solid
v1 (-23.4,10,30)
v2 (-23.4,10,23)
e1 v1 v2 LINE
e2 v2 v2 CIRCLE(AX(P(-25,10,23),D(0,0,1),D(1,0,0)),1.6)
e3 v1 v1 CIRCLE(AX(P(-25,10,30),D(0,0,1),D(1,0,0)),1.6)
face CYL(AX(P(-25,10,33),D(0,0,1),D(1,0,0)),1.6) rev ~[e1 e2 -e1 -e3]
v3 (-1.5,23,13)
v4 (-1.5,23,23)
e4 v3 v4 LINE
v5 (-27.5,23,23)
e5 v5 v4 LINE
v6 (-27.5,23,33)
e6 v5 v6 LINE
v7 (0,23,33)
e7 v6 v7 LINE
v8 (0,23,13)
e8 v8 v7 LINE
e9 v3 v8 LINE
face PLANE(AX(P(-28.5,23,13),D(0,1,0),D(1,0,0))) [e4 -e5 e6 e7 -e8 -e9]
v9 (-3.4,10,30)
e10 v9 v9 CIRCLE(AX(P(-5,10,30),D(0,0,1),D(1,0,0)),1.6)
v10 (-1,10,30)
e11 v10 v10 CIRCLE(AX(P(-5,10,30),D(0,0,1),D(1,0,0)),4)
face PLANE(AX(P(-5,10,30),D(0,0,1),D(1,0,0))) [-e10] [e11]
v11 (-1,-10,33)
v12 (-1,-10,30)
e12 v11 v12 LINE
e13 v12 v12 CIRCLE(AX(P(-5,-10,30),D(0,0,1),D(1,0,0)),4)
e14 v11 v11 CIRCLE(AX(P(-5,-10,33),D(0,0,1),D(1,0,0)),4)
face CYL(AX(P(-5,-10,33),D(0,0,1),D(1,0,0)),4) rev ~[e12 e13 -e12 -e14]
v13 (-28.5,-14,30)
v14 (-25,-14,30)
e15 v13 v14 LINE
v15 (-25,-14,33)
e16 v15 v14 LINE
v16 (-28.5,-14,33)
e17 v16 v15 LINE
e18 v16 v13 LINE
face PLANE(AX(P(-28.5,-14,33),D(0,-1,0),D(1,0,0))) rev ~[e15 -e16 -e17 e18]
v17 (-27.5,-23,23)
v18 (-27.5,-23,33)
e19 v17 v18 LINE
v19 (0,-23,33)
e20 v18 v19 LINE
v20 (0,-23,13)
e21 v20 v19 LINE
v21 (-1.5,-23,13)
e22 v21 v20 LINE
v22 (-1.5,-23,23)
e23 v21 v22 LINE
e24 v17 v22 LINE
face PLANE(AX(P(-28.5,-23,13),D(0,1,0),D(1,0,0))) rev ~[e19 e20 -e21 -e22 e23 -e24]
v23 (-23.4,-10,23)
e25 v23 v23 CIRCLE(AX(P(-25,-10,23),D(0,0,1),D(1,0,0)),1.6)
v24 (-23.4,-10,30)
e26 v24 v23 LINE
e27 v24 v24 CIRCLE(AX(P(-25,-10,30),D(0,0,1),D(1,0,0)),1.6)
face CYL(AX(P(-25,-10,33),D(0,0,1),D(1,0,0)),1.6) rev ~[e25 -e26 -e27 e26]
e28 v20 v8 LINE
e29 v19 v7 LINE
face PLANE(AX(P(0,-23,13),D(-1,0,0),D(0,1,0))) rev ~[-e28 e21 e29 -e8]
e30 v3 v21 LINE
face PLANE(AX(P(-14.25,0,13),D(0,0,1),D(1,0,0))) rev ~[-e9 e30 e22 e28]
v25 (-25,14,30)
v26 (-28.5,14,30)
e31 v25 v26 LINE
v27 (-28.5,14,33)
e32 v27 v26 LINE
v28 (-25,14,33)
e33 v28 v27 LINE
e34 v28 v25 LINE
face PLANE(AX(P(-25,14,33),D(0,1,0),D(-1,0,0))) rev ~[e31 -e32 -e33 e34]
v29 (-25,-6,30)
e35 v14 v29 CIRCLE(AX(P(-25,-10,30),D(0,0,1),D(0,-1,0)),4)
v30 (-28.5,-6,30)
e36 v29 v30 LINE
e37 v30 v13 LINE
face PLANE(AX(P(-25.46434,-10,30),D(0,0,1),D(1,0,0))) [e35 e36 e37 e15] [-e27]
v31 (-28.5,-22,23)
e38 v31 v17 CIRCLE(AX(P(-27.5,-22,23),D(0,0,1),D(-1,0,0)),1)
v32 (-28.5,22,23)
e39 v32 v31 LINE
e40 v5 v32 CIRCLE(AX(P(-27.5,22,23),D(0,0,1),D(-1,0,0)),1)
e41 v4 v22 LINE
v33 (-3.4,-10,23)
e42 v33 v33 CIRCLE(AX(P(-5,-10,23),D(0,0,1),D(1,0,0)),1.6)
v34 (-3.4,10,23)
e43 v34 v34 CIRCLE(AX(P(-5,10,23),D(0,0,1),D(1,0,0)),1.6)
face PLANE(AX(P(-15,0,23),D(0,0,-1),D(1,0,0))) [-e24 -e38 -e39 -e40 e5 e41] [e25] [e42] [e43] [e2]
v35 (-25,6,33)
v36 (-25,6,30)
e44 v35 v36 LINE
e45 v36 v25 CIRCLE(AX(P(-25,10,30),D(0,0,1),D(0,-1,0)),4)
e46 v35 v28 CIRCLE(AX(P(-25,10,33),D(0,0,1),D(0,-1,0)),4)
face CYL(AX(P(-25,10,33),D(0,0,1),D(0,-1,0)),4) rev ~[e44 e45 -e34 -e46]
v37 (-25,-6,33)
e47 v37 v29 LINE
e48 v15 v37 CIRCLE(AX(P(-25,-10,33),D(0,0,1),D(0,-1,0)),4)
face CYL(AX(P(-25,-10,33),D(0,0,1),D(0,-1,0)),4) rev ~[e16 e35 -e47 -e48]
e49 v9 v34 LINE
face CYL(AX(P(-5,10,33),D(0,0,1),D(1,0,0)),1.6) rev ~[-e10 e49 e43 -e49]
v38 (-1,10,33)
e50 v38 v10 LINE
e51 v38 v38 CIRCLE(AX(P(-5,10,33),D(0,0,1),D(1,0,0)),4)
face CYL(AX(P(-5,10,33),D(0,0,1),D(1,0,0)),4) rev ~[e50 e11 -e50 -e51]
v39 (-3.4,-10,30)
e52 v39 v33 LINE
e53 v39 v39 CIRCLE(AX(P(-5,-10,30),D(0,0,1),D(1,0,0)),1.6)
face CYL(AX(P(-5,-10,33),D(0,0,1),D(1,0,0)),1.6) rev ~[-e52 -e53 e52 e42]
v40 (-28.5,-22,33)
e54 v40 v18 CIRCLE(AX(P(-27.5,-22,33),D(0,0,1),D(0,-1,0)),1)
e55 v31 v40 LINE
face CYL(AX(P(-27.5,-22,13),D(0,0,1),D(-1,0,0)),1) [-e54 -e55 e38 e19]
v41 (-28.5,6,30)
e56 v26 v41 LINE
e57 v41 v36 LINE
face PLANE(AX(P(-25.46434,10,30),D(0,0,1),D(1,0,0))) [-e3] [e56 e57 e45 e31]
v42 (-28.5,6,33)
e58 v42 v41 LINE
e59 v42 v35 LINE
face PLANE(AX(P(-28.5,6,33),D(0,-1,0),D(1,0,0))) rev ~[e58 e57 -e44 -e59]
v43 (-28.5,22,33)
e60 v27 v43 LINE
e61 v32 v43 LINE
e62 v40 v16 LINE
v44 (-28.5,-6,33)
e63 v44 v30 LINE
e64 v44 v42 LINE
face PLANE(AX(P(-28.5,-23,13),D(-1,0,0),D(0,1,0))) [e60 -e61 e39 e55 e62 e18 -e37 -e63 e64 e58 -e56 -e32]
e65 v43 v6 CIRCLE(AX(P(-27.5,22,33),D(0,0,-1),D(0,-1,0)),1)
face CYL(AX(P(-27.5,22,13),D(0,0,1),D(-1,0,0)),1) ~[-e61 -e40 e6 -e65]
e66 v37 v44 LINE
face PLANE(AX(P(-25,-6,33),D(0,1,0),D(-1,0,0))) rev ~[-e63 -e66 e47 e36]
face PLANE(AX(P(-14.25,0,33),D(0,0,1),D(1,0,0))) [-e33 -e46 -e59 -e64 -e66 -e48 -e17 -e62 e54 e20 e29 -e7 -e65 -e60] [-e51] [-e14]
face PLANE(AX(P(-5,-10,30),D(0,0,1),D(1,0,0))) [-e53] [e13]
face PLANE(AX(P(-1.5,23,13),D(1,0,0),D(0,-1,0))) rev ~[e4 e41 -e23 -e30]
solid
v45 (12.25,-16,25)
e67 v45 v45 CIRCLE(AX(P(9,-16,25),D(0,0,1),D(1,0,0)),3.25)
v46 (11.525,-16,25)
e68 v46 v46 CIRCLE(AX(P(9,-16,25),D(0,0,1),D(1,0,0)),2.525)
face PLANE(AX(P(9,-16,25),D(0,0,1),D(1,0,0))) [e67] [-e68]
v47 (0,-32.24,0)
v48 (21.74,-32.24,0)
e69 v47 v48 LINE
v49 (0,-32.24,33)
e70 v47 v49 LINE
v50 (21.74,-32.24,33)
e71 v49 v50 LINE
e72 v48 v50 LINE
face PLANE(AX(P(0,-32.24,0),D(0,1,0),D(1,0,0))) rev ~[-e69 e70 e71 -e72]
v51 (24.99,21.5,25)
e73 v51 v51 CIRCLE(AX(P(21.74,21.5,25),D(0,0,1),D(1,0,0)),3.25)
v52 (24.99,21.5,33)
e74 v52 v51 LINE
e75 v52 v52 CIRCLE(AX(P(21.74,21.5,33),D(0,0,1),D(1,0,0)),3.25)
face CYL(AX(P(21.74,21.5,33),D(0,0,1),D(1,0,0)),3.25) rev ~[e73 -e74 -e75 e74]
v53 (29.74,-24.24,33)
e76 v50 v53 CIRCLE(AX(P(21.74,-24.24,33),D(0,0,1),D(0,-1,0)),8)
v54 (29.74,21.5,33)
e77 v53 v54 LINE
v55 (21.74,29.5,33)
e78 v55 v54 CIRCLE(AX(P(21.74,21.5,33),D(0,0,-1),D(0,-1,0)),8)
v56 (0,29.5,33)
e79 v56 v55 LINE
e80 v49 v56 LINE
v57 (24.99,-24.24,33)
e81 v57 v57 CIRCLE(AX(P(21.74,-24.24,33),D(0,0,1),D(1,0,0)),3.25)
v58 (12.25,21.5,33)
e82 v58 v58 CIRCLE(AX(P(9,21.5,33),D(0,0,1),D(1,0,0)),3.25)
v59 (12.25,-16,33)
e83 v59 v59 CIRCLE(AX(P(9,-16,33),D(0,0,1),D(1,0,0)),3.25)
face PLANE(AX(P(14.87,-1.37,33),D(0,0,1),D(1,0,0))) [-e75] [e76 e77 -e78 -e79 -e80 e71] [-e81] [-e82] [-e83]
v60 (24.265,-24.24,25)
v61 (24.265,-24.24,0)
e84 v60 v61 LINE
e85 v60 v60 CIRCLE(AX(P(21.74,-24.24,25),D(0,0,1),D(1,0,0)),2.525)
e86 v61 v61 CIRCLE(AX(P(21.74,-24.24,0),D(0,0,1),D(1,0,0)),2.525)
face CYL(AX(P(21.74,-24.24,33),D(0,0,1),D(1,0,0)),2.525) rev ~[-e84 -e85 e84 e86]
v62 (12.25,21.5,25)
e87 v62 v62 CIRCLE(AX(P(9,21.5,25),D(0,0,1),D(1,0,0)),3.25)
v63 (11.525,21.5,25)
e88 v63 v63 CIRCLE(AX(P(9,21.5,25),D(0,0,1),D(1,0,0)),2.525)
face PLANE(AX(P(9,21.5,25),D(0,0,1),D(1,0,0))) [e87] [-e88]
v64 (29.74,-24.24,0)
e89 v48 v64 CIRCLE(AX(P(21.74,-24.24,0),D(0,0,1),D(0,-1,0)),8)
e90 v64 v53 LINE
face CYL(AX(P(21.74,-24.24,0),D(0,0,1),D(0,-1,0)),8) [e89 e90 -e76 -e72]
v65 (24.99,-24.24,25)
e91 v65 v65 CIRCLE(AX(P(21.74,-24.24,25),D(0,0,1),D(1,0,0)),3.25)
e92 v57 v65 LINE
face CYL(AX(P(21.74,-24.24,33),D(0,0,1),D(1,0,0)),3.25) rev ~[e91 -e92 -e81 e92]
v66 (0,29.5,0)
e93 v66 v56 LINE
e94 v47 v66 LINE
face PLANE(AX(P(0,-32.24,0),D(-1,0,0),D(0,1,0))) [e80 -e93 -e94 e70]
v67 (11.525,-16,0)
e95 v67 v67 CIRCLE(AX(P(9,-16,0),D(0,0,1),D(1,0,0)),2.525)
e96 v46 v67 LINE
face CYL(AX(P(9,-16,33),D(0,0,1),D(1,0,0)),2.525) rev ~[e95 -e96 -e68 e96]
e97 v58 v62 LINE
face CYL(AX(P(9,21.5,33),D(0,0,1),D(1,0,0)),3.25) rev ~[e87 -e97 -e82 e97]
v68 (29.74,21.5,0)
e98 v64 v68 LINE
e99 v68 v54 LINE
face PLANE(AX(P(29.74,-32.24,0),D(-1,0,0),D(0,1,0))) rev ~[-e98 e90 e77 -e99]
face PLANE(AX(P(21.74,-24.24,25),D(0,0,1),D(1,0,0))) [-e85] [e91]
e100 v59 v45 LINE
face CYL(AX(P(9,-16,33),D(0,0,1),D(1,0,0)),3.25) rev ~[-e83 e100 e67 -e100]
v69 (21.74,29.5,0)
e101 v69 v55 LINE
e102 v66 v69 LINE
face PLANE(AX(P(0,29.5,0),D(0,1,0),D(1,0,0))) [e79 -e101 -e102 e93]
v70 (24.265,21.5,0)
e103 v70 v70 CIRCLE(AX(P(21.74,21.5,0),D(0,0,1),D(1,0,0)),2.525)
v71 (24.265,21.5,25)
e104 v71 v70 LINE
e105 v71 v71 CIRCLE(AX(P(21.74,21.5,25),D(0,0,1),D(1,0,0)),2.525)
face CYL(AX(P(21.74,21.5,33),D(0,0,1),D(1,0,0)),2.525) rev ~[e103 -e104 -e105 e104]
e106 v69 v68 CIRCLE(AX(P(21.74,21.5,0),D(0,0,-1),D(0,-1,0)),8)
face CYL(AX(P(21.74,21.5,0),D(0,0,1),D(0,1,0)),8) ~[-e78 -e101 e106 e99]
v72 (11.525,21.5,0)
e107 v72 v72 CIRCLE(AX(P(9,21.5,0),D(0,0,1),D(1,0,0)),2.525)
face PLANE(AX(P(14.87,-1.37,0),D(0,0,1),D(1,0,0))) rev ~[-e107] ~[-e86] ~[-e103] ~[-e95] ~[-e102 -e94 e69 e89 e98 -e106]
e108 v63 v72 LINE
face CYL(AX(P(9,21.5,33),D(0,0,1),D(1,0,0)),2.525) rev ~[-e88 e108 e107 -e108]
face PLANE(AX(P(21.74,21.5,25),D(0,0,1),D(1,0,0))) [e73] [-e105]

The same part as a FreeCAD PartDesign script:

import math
import FreeCAD as App
import Part
import Sketcher


def edges_at(feature, points):
    """Names of the edges that pass closest to the given points."""
    edges = feature.Shape.Edges
    near = lambda p: min(range(len(edges)), key=lambda i: edges[i].distToShape(Part.Vertex(*p))[0])
    return sorted({f"Edge{near(p) + 1}" for p in points})

doc = App.newDocument("Part")
body = doc.addObject("PartDesign::Body", "Body")

sketch1 = doc.addObject("Sketcher::SketchObject", "Sketch")
body.addObject(sketch1)
sketch1.AttachmentSupport = (doc.XY_Plane, [""])
sketch1.MapMode = "FlatFace"
sketch1.addGeometry([
    Part.LineSegment(App.Vector(-28, 23, 0), App.Vector(-28, -23, 0)),
    Part.LineSegment(App.Vector(-28, -23, 0), App.Vector(0, -23, 0)),
    Part.LineSegment(App.Vector(0, -23, 0), App.Vector(0, 23, 0)),
    Part.LineSegment(App.Vector(0, 23, 0), App.Vector(-28, 23, 0)),
], False)
sketch1.addConstraint([
    Sketcher.Constraint("Coincident", 0, 2, 1, 1),
    Sketcher.Constraint("Coincident", 1, 2, 2, 1),
    Sketcher.Constraint("Coincident", 2, 2, 3, 1),
    Sketcher.Constraint("Coincident", 3, 2, 0, 1),
    Sketcher.Constraint("Vertical", 0),
    Sketcher.Constraint("Horizontal", 1),
    Sketcher.Constraint("Vertical", 2),
    Sketcher.Constraint("Horizontal", 3),
    Sketcher.Constraint("Symmetric", 1, 2, 2, 2, -1, 1),
    Sketcher.Constraint("DistanceY", 0, 2, 0, 1, 46.0),
    Sketcher.Constraint("DistanceX", 1, 1, 1, 2, 28.5),
])
pad1 = doc.addObject("PartDesign::Pad", "Pad")
body.addObject(pad1)
pad1.Profile = sketch1
pad1.Length = 20
doc.recompute()

fillet = doc.addObject("PartDesign::Fillet", "Fillet")
body.addObject(fillet)
fillet.Base = (pad1, edges_at(pad1, [(-28.5, 23, 10), (-28.5, -23, 10)]))
fillet.Radius = 1

sketch2 = doc.addObject("Sketcher::SketchObject", "Sketch001")
body.addObject(sketch2)
sketch2.AttachmentSupport = (doc.XY_Plane, [""])
sketch2.MapMode = "FlatFace"
sketch2.AttachmentOffset = App.Placement(App.Vector(0, 0, 20), App.Rotation())
sketch2.addGeometry([
    Part.Circle(App.Vector(-25, 10, 0), App.Vector(0, 0, 1), 1.6),
    Part.Circle(App.Vector(-5, 10, 0), App.Vector(0, 0, 1), 1.6),
    Part.Circle(App.Vector(-25, -10, 0), App.Vector(0, 0, 1), 1.6),
    Part.Circle(App.Vector(-5, -10, 0), App.Vector(0, 0, 1), 1.6),
], False)
sketch2.addConstraint([
    Sketcher.Constraint("Equal", 0, 1),
    Sketcher.Constraint("Equal", 1, 2),
    Sketcher.Constraint("Equal", 2, 3),
    Sketcher.Constraint("Symmetric", 0, 3, 2, 3, -1),
    Sketcher.Constraint("Symmetric", 1, 3, 3, 3, -1),
    Sketcher.Constraint("Horizontal", 0, 3, 1, 3),
    Sketcher.Constraint("Diameter", 0, 3.2),
    Sketcher.Constraint("DistanceX", 0, 3, -1, 1, 25.0),
    Sketcher.Constraint("DistanceY", -1, 1, 0, 3, 10.0),
    Sketcher.Constraint("DistanceX", 1, 3, -1, 1, 5.0),
])
pocket1 = doc.addObject("PartDesign::Pocket", "Pocket")
body.addObject(pocket1)
pocket1.Profile = sketch2
pocket1.Type = "ThroughAll"

sketch3 = doc.addObject("Sketcher::SketchObject", "Sketch002")
body.addObject(sketch3)
sketch3.AttachmentSupport = (doc.XY_Plane, [""])
sketch3.MapMode = "FlatFace"
sketch3.addGeometry([
    Part.LineSegment(App.Vector(-28, -23, 0), App.Vector(-28, 23, 0)),
    Part.LineSegment(App.Vector(-28, 23, 0), App.Vector(-2, 23, 0)),
    Part.LineSegment(App.Vector(-2, 23, 0), App.Vector(-2, -23, 0)),
    Part.LineSegment(App.Vector(-2, -23, 0), App.Vector(-28, -23, 0)),
], False)
sketch3.addConstraint([
    Sketcher.Constraint("Coincident", 0, 2, 1, 1),
    Sketcher.Constraint("Coincident", 1, 2, 2, 1),
    Sketcher.Constraint("Coincident", 2, 2, 3, 1),
    Sketcher.Constraint("Coincident", 3, 2, 0, 1),
    Sketcher.Constraint("Vertical", 0),
    Sketcher.Constraint("Horizontal", 1),
    Sketcher.Constraint("Vertical", 2),
    Sketcher.Constraint("Horizontal", 3),
    Sketcher.Constraint("DistanceX", 1, 1, 1, 2, 27.0),
    Sketcher.Constraint("DistanceY", 0, 1, 0, 2, 46.0),
    Sketcher.Constraint("DistanceY", -1, 1, 0, 2, 23.0),
    Sketcher.Constraint("DistanceX", 0, 2, -1, 1, 28.5),
])
pocket2 = doc.addObject("PartDesign::Pocket", "Pocket001")
body.addObject(pocket2)
pocket2.Profile = sketch3
pocket2.Length = 10
pocket2.Reversed = True

sketch4 = doc.addObject("Sketcher::SketchObject", "Sketch003")
body.addObject(sketch4)
sketch4.AttachmentSupport = (doc.XY_Plane, [""])
sketch4.MapMode = "FlatFace"
sketch4.AttachmentOffset = App.Placement(App.Vector(0, 0, 20), App.Rotation())
sketch4.addGeometry([
    Part.Circle(App.Vector(-5, 10, 0), App.Vector(0, 0, 1), 4),
    Part.Circle(App.Vector(-5, -10, 0), App.Vector(0, 0, 1), 4),
    Part.ArcOfCircle(Part.Circle(App.Vector(-25, -10, 0), App.Vector(0, 0, 1), 4), math.radians(-90), math.radians(90)),
    Part.LineSegment(App.Vector(-25, -6, 0), App.Vector(-28.5, -6, 0)),
    Part.LineSegment(App.Vector(-28.5, -6, 0), App.Vector(-28.5, -14, 0)),
    Part.LineSegment(App.Vector(-28.5, -14, 0), App.Vector(-25, -14, 0)),
    Part.ArcOfCircle(Part.Circle(App.Vector(-25, 10, 0), App.Vector(0, 0, 1), 4), math.radians(-90), math.radians(90)),
    Part.LineSegment(App.Vector(-25, 14, 0), App.Vector(-28.5, 14, 0)),
    Part.LineSegment(App.Vector(-28.5, 14, 0), App.Vector(-28.5, 6, 0)),
    Part.LineSegment(App.Vector(-28.5, 6, 0), App.Vector(-25, 6, 0)),
], False)
sketch4.addConstraint([
    Sketcher.Constraint("Tangent", 2, 2, 3, 1),
    Sketcher.Constraint("Coincident", 3, 2, 4, 1),
    Sketcher.Constraint("Coincident", 4, 2, 5, 1),
    Sketcher.Constraint("Tangent", 5, 2, 2, 1),
    Sketcher.Constraint("Tangent", 6, 2, 7, 1),
    Sketcher.Constraint("Coincident", 7, 2, 8, 1),
    Sketcher.Constraint("Coincident", 8, 2, 9, 1),
    Sketcher.Constraint("Tangent", 9, 2, 6, 1),
    Sketcher.Constraint("Horizontal", 3),
    Sketcher.Constraint("Vertical", 4),
    Sketcher.Constraint("Horizontal", 5),
    Sketcher.Constraint("Horizontal", 7),
    Sketcher.Constraint("Vertical", 8),
    Sketcher.Constraint("Horizontal", 9),
    Sketcher.Constraint("Equal", 0, 1),
    Sketcher.Constraint("Equal", 1, 2),
    Sketcher.Constraint("Equal", 2, 6),
    Sketcher.Constraint("Symmetric", 0, 3, 1, 3, -1),
    Sketcher.Constraint("Symmetric", 2, 3, 6, 3, -1),
    Sketcher.Constraint("Horizontal", 1, 3, 2, 3),
    Sketcher.Constraint("Vertical", 4, 2, 7, 2),
    Sketcher.Constraint("Diameter", 0, 8.0),
    Sketcher.Constraint("DistanceX", 3, 2, 3, 1, 3.5),
    Sketcher.Constraint("DistanceX", 0, 3, -1, 1, 5.0),
    Sketcher.Constraint("DistanceY", -1, 1, 0, 3, 10.0),
    Sketcher.Constraint("DistanceX", 2, 3, -1, 1, 25.0),
])
pocket3 = doc.addObject("PartDesign::Pocket", "Pocket002")
body.addObject(pocket3)
pocket3.Profile = sketch4
pocket3.Length = 3
body2 = doc.addObject("PartDesign::Body", "Body001")
doc.recompute()

body.Placement = App.Placement(App.Vector(0, 0, 13), App.Rotation(App.Vector(0, 0, 1), 0))
boolean = doc.addObject("PartDesign::Boolean", "Boolean")
body2.addObject(boolean)
boolean.Type = "Fuse"
boolean.addObjects([body])
body3 = doc.addObject("PartDesign::Body", "Body002")

sketch5 = doc.addObject("Sketcher::SketchObject", "Sketch004")
body3.addObject(sketch5)
sketch5.AttachmentSupport = (doc.getObject("XY_Plane002"), [""])
sketch5.MapMode = "FlatFace"
sketch5.addGeometry([
    Part.LineSegment(App.Vector(0, 30, 0), App.Vector(0, -32, 0)),
    Part.LineSegment(App.Vector(0, -32, 0), App.Vector(30, -32, 0)),
    Part.LineSegment(App.Vector(30, -32, 0), App.Vector(30, 30, 0)),
    Part.LineSegment(App.Vector(30, 30, 0), App.Vector(0, 30, 0)),
], False)
sketch5.addConstraint([
    Sketcher.Constraint("Coincident", 0, 2, 1, 1),
    Sketcher.Constraint("Coincident", 1, 2, 2, 1),
    Sketcher.Constraint("Coincident", 2, 2, 3, 1),
    Sketcher.Constraint("Coincident", 3, 2, 0, 1),
    Sketcher.Constraint("Vertical", 0),
    Sketcher.Constraint("Horizontal", 1),
    Sketcher.Constraint("Vertical", 2),
    Sketcher.Constraint("Horizontal", 3),
    Sketcher.Constraint("PointOnObject", 0, 2, -2),
    Sketcher.Constraint("DistanceX", 1, 1, 1, 2, 29.74),
    Sketcher.Constraint("DistanceY", 0, 2, 0, 1, 61.74),
    Sketcher.Constraint("DistanceY", -1, 1, 2, 2, 29.5),
])
pad2 = doc.addObject("PartDesign::Pad", "Pad001")
body3.addObject(pad2)
pad2.Profile = sketch5
pad2.Length = 33

sketch6 = doc.addObject("Sketcher::SketchObject", "Sketch005")
body3.addObject(sketch6)
sketch6.AttachmentSupport = (doc.getObject("XY_Plane002"), [""])
sketch6.MapMode = "FlatFace"
sketch6.AttachmentOffset = App.Placement(App.Vector(0, 0, 33), App.Rotation())
sketch6.addGeometry([
    Part.Circle(App.Vector(9, 21.5, 0), App.Vector(0, 0, 1), 2.5),
    Part.Circle(App.Vector(21.7, -24.2, 0), App.Vector(0, 0, 1), 2.5),
    Part.Circle(App.Vector(21.7, 21.5, 0), App.Vector(0, 0, 1), 2.5),
    Part.Circle(App.Vector(9, -16, 0), App.Vector(0, 0, 1), 2.5),
], False)
sketch6.addConstraint([
    Sketcher.Constraint("Equal", 0, 1),
    Sketcher.Constraint("Equal", 1, 2),
    Sketcher.Constraint("Equal", 2, 3),
    Sketcher.Constraint("Horizontal", 0, 3, 2, 3),
    Sketcher.Constraint("Vertical", 1, 3, 2, 3),
    Sketcher.Constraint("Vertical", 0, 3, 3, 3),
    Sketcher.Constraint("Diameter", 0, 5.05),
    Sketcher.Constraint("DistanceX", -1, 1, 0, 3, 9.0),
    Sketcher.Constraint("DistanceY", 3, 3, -1, 1, 16.0),
    Sketcher.Constraint("DistanceY", -1, 1, 0, 3, 21.5),
    Sketcher.Constraint("DistanceX", -1, 1, 1, 3, 21.74),
    Sketcher.Constraint("DistanceY", 1, 3, -1, 1, 24.24),
])
pocket4 = doc.addObject("PartDesign::Pocket", "Pocket003")
body3.addObject(pocket4)
pocket4.Profile = sketch6
pocket4.Type = "ThroughAll"

sketch7 = doc.addObject("Sketcher::SketchObject", "Sketch006")
body3.addObject(sketch7)
sketch7.AttachmentSupport = (doc.getObject("XY_Plane002"), [""])
sketch7.MapMode = "FlatFace"
sketch7.AttachmentOffset = App.Placement(App.Vector(0, 0, 33), App.Rotation())
sketch7.addGeometry([
    Part.Circle(App.Vector(21.7, 21.5, 0), App.Vector(0, 0, 1), 3.2),
    Part.Circle(App.Vector(9, 21.5, 0), App.Vector(0, 0, 1), 3.2),
    Part.Circle(App.Vector(9, -16, 0), App.Vector(0, 0, 1), 3.2),
    Part.Circle(App.Vector(21.7, -24.2, 0), App.Vector(0, 0, 1), 3.2),
], False)
sketch7.addConstraint([
    Sketcher.Constraint("Equal", 0, 1),
    Sketcher.Constraint("Equal", 1, 2),
    Sketcher.Constraint("Equal", 2, 3),
    Sketcher.Constraint("Horizontal", 0, 3, 1, 3),
    Sketcher.Constraint("Vertical", 1, 3, 2, 3),
    Sketcher.Constraint("Vertical", 0, 3, 3, 3),
    Sketcher.Constraint("Diameter", 0, 6.5),
    Sketcher.Constraint("DistanceX", -1, 1, 1, 3, 9.0),
    Sketcher.Constraint("DistanceY", 2, 3, -1, 1, 16.0),
    Sketcher.Constraint("DistanceY", -1, 1, 0, 3, 21.5),
    Sketcher.Constraint("DistanceX", -1, 1, 0, 3, 21.74),
    Sketcher.Constraint("DistanceY", 3, 3, -1, 1, 24.24),
])
pocket5 = doc.addObject("PartDesign::Pocket", "Pocket004")
body3.addObject(pocket5)
pocket5.Profile = sketch7
pocket5.Length = 8
doc.recompute()

fillet2 = doc.addObject("PartDesign::Fillet", "Fillet001")
body3.addObject(fillet2)
fillet2.Base = (pocket5, edges_at(pocket5, [(29.74, -32.24, 16.5), (29.74, 29.5, 16.5)]))
fillet2.Radius = 8

doc.recompute()
